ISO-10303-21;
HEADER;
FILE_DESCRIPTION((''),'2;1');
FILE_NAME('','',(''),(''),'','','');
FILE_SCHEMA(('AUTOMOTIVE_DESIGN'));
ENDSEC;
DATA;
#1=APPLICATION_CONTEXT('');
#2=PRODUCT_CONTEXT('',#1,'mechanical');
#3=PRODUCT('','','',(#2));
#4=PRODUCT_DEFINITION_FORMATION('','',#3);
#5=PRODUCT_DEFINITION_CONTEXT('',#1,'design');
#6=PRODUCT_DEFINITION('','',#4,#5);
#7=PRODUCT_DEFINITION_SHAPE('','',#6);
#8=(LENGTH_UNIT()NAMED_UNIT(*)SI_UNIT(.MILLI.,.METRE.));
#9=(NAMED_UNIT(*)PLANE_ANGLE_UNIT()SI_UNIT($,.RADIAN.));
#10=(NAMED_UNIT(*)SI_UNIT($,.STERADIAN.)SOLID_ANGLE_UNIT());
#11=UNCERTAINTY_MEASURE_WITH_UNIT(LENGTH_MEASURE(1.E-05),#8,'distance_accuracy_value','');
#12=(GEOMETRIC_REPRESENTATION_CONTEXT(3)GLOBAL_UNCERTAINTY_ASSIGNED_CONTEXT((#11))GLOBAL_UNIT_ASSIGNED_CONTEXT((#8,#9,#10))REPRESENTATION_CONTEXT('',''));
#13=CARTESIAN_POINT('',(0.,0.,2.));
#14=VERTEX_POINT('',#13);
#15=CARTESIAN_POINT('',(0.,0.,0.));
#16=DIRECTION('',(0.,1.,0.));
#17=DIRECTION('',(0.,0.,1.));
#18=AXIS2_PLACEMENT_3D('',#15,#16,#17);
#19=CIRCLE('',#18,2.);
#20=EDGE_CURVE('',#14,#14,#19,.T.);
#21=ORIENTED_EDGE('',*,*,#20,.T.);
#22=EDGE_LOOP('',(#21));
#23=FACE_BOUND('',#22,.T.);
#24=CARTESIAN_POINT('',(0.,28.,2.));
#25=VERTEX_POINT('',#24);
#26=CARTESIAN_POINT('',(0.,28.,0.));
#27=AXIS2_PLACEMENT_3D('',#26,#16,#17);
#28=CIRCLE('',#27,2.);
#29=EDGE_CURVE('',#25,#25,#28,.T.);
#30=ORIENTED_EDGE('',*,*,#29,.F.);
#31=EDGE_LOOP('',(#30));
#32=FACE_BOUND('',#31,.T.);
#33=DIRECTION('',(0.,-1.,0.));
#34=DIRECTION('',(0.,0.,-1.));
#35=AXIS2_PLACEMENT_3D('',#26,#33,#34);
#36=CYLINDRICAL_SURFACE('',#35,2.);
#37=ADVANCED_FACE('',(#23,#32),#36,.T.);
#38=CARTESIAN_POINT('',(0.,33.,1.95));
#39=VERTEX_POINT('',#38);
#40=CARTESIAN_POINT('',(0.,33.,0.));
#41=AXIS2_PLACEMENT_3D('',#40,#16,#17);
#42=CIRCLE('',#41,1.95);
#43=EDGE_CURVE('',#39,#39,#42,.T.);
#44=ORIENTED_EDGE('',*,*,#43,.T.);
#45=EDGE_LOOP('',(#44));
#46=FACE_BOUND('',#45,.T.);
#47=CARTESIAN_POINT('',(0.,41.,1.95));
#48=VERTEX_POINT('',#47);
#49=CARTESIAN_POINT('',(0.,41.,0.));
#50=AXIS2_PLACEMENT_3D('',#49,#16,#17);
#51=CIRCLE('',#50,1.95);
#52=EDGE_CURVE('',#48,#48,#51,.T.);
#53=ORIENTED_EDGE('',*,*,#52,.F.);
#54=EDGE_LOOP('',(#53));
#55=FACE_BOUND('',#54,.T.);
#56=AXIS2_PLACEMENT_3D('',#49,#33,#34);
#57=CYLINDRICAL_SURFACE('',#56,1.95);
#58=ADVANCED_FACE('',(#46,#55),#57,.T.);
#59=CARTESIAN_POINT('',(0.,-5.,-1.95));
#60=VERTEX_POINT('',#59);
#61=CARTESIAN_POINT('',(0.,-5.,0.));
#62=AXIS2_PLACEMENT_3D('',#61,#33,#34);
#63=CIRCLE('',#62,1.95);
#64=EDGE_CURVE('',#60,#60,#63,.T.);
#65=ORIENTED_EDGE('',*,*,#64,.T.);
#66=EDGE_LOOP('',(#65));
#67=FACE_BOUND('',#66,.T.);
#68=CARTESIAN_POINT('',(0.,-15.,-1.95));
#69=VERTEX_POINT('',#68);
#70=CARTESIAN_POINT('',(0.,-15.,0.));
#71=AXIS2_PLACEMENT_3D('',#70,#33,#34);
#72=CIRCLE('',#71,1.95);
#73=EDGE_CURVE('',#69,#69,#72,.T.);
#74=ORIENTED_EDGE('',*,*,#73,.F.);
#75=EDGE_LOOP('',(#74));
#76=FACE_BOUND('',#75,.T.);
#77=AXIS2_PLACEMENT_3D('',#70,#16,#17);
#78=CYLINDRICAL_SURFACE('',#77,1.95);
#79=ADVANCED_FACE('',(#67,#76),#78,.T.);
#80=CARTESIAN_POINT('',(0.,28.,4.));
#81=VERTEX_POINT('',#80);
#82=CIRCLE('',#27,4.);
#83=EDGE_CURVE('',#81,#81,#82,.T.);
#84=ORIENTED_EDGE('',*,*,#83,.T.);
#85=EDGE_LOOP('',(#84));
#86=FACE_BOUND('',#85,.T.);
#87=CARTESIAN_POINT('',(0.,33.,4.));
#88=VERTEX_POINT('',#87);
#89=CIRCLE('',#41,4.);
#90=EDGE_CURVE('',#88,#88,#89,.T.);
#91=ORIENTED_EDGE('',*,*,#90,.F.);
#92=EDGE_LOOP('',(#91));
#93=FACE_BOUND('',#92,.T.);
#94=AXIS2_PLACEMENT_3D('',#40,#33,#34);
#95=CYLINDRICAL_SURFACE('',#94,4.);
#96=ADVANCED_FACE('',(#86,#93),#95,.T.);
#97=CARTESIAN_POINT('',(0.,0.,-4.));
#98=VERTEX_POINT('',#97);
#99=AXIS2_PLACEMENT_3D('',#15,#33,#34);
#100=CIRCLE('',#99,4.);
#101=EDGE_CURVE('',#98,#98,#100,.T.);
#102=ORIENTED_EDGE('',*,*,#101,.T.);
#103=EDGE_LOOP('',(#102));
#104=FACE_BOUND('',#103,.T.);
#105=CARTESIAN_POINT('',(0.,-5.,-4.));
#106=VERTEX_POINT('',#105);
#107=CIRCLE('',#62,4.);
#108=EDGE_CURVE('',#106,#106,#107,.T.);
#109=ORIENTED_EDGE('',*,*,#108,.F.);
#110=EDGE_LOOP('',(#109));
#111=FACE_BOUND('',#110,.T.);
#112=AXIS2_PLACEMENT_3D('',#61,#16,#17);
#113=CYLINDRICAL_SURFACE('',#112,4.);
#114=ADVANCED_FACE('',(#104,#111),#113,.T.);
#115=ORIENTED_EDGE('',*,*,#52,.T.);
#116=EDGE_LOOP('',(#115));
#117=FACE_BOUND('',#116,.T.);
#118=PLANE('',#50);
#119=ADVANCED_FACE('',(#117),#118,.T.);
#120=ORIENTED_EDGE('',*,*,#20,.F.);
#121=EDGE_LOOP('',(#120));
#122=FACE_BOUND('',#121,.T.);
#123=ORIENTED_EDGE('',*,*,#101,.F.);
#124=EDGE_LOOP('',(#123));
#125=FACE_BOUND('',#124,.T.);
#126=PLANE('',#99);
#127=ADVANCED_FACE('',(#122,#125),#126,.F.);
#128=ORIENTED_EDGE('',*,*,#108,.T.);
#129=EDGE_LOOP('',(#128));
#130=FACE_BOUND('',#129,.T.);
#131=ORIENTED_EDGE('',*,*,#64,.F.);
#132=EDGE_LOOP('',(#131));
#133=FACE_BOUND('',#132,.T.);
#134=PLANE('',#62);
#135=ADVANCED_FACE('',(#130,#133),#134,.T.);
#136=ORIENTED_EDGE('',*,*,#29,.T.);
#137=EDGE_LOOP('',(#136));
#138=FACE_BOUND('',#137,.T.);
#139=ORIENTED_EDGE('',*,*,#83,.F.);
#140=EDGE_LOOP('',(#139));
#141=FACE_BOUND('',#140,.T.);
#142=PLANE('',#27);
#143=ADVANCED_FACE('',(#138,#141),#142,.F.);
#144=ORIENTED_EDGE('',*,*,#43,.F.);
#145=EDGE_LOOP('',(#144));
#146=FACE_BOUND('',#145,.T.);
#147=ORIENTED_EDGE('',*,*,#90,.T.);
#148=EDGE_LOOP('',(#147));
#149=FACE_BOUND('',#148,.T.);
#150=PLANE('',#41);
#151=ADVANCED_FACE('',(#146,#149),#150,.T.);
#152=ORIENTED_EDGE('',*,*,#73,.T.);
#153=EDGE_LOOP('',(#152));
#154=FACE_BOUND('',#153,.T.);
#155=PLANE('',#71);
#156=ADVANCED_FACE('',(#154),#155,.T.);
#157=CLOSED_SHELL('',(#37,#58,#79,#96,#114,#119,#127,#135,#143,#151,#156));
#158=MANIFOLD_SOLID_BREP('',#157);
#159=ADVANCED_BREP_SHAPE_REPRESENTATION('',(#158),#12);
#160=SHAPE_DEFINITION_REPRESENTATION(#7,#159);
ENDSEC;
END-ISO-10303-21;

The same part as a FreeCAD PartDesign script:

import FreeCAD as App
import Part
import Sketcher
from FreeCAD import Vector
Q = App.Units.Quantity

doc = App.newDocument("Part")
body = doc.addObject("PartDesign::Body", "Body")

# Sketch on XZ plane
sketch1 = body.newObject("Sketcher::SketchObject", "Sketch")
sketch1.AttachmentSupport = (doc.getObject("XZ_Plane"), [""])
sketch1.MapMode = "FlatFace"
sketch1.addGeometry(Part.Circle(Vector(0, 0, 0), Vector(0, 0, 1), 2), False)
sketch1.addConstraint(Sketcher.Constraint("Coincident", 0, 3, -1, 1))
sketch1.addConstraint(Sketcher.Constraint("Diameter", 0, Q("4 mm")))
pad1 = body.newObject("PartDesign::Pad", "Pad")
pad1.Profile = sketch1
pad1.Length = 28
pad1.Reversed = True

# Sketch on XZ plane
sketch2 = body.newObject("Sketcher::SketchObject", "Sketch001")
sketch2.AttachmentSupport = (doc.getObject("XZ_Plane"), [""])
sketch2.MapMode = "FlatFace"
sketch2.addGeometry(Part.Circle(Vector(0, 0, 0), Vector(0, 0, 1), 4), False)
sketch2.addConstraint(Sketcher.Constraint("Coincident", 0, 3, -1, 1))
sketch2.addConstraint(Sketcher.Constraint("Diameter", 0, Q("8 mm")))
pad2 = body.newObject("PartDesign::Pad", "Pad001")
pad2.Profile = sketch2
pad2.Length = 5

# Sketch on XZ plane
sketch3 = body.newObject("Sketcher::SketchObject", "Sketch002")
sketch3.AttachmentSupport = (doc.getObject("XZ_Plane"), [""])
sketch3.MapMode = "FlatFace"
sketch3.AttachmentOffset = App.Placement(Vector(0, 0, 5), App.Rotation())
sketch3.addGeometry(Part.Circle(Vector(0, 0, 0), Vector(0, 0, 1), 1.9), False)
sketch3.addConstraint(Sketcher.Constraint("Coincident", 0, 3, -1, 1))
sketch3.addConstraint(Sketcher.Constraint("Diameter", 0, Q("3.9 mm")))
pad3 = body.newObject("PartDesign::Pad", "Pad002")
pad3.Profile = sketch3
pad3.Length = 10

# Sketch on XZ plane
sketch4 = body.newObject("Sketcher::SketchObject", "Sketch003")
sketch4.AttachmentSupport = (doc.getObject("XZ_Plane"), [""])
sketch4.MapMode = "FlatFace"
sketch4.AttachmentOffset = App.Placement(Vector(0, 0, -33), App.Rotation())
sketch4.addGeometry(Part.Circle(Vector(0, 0, 0), Vector(0, 0, 1), 4), False)
sketch4.addConstraint(Sketcher.Constraint("Coincident", 0, 3, -1, 1))
sketch4.addConstraint(Sketcher.Constraint("Diameter", 0, Q("8 mm")))
pad4 = body.newObject("PartDesign::Pad", "Pad003")
pad4.Profile = sketch4
pad4.Length = 5

# Sketch on XZ plane
sketch5 = body.newObject("Sketcher::SketchObject", "Sketch004")
sketch5.AttachmentSupport = (doc.getObject("XZ_Plane"), [""])
sketch5.MapMode = "FlatFace"
sketch5.AttachmentOffset = App.Placement(Vector(0, 0, -41), App.Rotation())
sketch5.addGeometry(Part.Circle(Vector(0, 0, 0), Vector(0, 0, 1), 1.9), False)
sketch5.addConstraint(Sketcher.Constraint("Coincident", 0, 3, -1, 1))
sketch5.addConstraint(Sketcher.Constraint("Diameter", 0, Q("3.9 mm")))
pad5 = body.newObject("PartDesign::Pad", "Pad004")
pad5.Profile = sketch5
pad5.Length = 8

doc.recompute()
